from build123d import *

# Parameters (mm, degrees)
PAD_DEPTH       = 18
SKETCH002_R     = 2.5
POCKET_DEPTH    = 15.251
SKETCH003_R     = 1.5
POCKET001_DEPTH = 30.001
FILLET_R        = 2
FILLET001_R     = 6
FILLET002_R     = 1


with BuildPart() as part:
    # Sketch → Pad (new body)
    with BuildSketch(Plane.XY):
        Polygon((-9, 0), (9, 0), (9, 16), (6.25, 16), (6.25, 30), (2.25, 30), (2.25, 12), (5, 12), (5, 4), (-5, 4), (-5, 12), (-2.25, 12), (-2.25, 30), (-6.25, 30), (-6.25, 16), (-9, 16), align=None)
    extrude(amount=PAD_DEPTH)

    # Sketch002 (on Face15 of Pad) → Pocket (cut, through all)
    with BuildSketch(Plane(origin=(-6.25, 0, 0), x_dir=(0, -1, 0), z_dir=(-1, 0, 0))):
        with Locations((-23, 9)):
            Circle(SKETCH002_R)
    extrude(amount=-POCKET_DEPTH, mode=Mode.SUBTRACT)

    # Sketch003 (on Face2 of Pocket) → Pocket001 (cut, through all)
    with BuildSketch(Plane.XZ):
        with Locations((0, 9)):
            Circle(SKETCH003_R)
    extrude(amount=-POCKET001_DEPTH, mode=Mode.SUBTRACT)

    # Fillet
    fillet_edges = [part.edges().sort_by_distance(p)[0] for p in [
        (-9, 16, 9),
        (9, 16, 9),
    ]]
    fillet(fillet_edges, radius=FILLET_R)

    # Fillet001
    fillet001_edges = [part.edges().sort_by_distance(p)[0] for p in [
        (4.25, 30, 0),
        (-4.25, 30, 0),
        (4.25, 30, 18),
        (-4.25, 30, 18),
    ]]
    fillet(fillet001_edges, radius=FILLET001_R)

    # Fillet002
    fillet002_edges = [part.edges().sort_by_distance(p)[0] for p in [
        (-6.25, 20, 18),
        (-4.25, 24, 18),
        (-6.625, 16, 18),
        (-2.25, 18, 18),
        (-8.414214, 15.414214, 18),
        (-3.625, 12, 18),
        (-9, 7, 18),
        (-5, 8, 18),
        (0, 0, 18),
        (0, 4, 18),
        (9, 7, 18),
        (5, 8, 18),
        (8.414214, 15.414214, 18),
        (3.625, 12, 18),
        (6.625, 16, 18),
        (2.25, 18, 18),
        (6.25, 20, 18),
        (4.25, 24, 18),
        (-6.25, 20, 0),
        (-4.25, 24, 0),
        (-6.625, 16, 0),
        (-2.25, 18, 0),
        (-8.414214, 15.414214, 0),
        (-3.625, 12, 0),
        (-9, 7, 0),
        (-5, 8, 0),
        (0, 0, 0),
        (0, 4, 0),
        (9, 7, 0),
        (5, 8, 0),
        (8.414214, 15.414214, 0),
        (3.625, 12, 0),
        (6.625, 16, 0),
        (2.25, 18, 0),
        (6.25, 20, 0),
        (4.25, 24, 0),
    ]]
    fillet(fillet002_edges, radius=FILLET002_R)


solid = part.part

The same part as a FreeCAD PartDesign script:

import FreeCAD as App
import Part
import Sketcher
Q = App.Units.Quantity


def edges_at(feature, points):
    """Names of the edges that pass closest to the given points."""
    edges = feature.Shape.Edges
    near = lambda p: min(range(len(edges)), key=lambda i: edges[i].distToShape(Part.Vertex(*p))[0])
    return sorted({f"Edge{near(p) + 1}" for p in points})


def add_polygon(sketch, points):
    """Adds a closed chain of lines whose ends are joined by coincident constraints."""
    first, n = sketch.GeometryCount, len(points)
    for a, b in zip(points, points[1:] + points[:1]):
        sketch.addGeometry(Part.LineSegment(App.Vector(*a, 0), App.Vector(*b, 0)), False)
    for i in range(n):
        sketch.addConstraint(Sketcher.Constraint("Coincident", first + i, 2, first + (i + 1) % n, 1))

doc = App.newDocument("Part")
body = doc.addObject("PartDesign::Body", "Body")

sketch1 = body.newObject("Sketcher::SketchObject", "Sketch")
sketch1.AttachmentSupport = (doc.getObject("XY_Plane"), [""])
sketch1.MapMode = "FlatFace"
add_polygon(sketch1, [(-9, 0), (9, 0), (9, 16), (6.2, 16), (6.2, 30), (2.2, 30), (2.2, 12), (5, 12), (5, 4), (-5, 4), (-5, 12), (-2.2, 12), (-2.2, 30), (-6.2, 30), (-6.2, 16), (-9, 16)])
sketch1.addConstraint([
    Sketcher.Constraint("Horizontal", 0),
    Sketcher.Constraint("Vertical", 1),
    Sketcher.Constraint("Horizontal", 2),
    Sketcher.Constraint("Vertical", 3),
    Sketcher.Constraint("Horizontal", 4),
    Sketcher.Constraint("Vertical", 5),
    Sketcher.Constraint("Horizontal", 6),
    Sketcher.Constraint("Vertical", 7),
    Sketcher.Constraint("Horizontal", 8),
    Sketcher.Constraint("Vertical", 9),
    Sketcher.Constraint("Horizontal", 10),
    Sketcher.Constraint("Vertical", 11),
    Sketcher.Constraint("Horizontal", 12),
    Sketcher.Constraint("Vertical", 13),
    Sketcher.Constraint("Horizontal", 14),
    Sketcher.Constraint("Vertical", 15),
    Sketcher.Constraint("Symmetric", 0, 2, 15, 2, -1, 1),
    Sketcher.Constraint("Symmetric", 6, 2, 9, 2, -2),
    Sketcher.Constraint("Symmetric", 4, 2, 11, 2, -2),
    Sketcher.Constraint("Symmetric", 2, 2, 13, 2, -2),
    Sketcher.Constraint("Equal", 2, 6),
    Sketcher.Constraint("Equal", 0, 5),
    Sketcher.Constraint("DistanceX", 0, 1, 0, 2, Q("18 mm")),
    Sketcher.Constraint("DistanceX", 4, 2, 4, 1, Q("4 mm")),
    Sketcher.Constraint("DistanceY", 1, 1, 1, 2, Q("16 mm")),
    Sketcher.Constraint("DistanceY", 3, 1, 3, 2, Q("14 mm")),
    Sketcher.Constraint("DistanceY", 7, 2, 7, 1, Q("8 mm")),
    Sketcher.Constraint("DistanceX", 2, 2, 2, 1, Q("2.75 mm")),
])
pad1 = body.newObject("PartDesign::Pad", "Pad")
pad1.Profile = sketch1
pad1.Length = 18

sketch2 = body.newObject("Sketcher::SketchObject", "Sketch001")
sketch2.AttachmentSupport = (doc.getObject("YZ_Plane"), [""])
sketch2.MapMode = "FlatFace"
sketch2.AttachmentOffset = App.Placement(App.Vector(0, 0, -6.25), App.Rotation())
sketch2.addGeometry(Part.Circle(App.Vector(23, 9, 0), App.Vector(0, 0, 1), 2.5), False)
sketch2.addConstraint([
    Sketcher.Constraint("Diameter", 0, Q("5 mm")),
    Sketcher.Constraint("DistanceX", -1, 1, 0, 3, Q("23 mm")),
    Sketcher.Constraint("DistanceY", -1, 1, 0, 3, Q("9 mm")),
])
pocket1 = body.newObject("PartDesign::Pocket", "Pocket")
pocket1.Profile = sketch2
pocket1.Type = "ThroughAll"
pocket1.Reversed = True

sketch3 = body.newObject("Sketcher::SketchObject", "Sketch002")
sketch3.AttachmentSupport = (doc.getObject("XZ_Plane"), [""])
sketch3.MapMode = "FlatFace"
sketch3.addGeometry(Part.Circle(App.Vector(0, 9, 0), App.Vector(0, 0, 1), 1.5), False)
sketch3.addConstraint([
    Sketcher.Constraint("PointOnObject", 0, 3, -2),
    Sketcher.Constraint("Diameter", 0, Q("3 mm")),
    Sketcher.Constraint("DistanceY", -1, 1, 0, 3, Q("9 mm")),
])
pocket2 = body.newObject("PartDesign::Pocket", "Pocket001")
pocket2.Profile = sketch3
pocket2.Type = "ThroughAll"
doc.recompute()

fillet = body.newObject("PartDesign::Fillet", "Fillet")
fillet.Base = (pocket2, edges_at(pocket2, [(-9, 16, 9), (9, 16, 9)]))
fillet.Radius = 2
doc.recompute()

fillet2 = body.newObject("PartDesign::Fillet", "Fillet001")
fillet2.Base = (fillet, edges_at(fillet, [
    (4.25, 30, 0),
    (-4.25, 30, 0),
    (4.25, 30, 18),
    (-4.25, 30, 18),
]))
fillet2.Radius = 6
doc.recompute()

fillet3 = body.newObject("PartDesign::Fillet", "Fillet002")
fillet3.Base = (fillet2, edges_at(fillet2, [
    (-6.25, 20, 18),
    (-4.25, 24, 18),
    (-6.625, 16, 18),
    (-2.25, 18, 18),
    (-8.414, 15.414, 18),
    (-3.625, 12, 18),
    (-9, 7, 18),
    (-5, 8, 18),
    (0, 0, 18),
    (0, 4, 18),
    (9, 7, 18),
    (5, 8, 18),
    (8.414, 15.414, 18),
    (3.625, 12, 18),
    (6.625, 16, 18),
    (2.25, 18, 18),
    (6.25, 20, 18),
    (4.25, 24, 18),
    (-6.25, 20, 0),
    (-4.25, 24, 0),
    (-6.625, 16, 0),
    (-2.25, 18, 0),
    (-8.414, 15.414, 0),
    (-3.625, 12, 0),
    (-9, 7, 0),
    (-5, 8, 0),
    (0, 0, 0),
    (0, 4, 0),
    (9, 7, 0),
    (5, 8, 0),
    (8.414, 15.414, 0),
    (3.625, 12, 0),
    (6.625, 16, 0),
    (2.25, 18, 0),
    (6.25, 20, 0),
    (4.25, 24, 0),
]))
fillet3.Radius = 1

doc.recompute()
